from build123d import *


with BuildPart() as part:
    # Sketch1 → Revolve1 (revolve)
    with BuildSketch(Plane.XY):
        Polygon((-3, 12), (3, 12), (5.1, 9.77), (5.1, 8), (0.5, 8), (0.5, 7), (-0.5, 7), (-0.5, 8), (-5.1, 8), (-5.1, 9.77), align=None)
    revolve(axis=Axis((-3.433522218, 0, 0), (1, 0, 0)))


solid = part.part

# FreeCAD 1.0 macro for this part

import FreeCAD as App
import Part
import Sketcher
from FreeCAD import Vector
Q = App.Units.Quantity

doc = App.newDocument("Part")
body = doc.addObject("PartDesign::Body", "Body")

sketch1 = body.newObject("Sketcher::SketchObject", "Sketch")
sketch1.AttachmentSupport = (doc.getObject("XY_Plane"), [""])
sketch1.MapMode = "FlatFace"
sketch1.addGeometry([
    Part.LineSegment(Vector(3, 12, 0), Vector(-3, 12, 0)),
    Part.LineSegment(Vector(-3, 12, 0), Vector(-5.1, 9.8, 0)),
    Part.LineSegment(Vector(-5.1, 9.8, 0), Vector(-5.1, 8, 0)),
    Part.LineSegment(Vector(-5.1, 8, 0), Vector(-0.5, 8, 0)),
    Part.LineSegment(Vector(-0.5, 8, 0), Vector(-0.5, 7, 0)),
    Part.LineSegment(Vector(-0.5, 7, 0), Vector(0.5, 7, 0)),
    Part.LineSegment(Vector(0.5, 7, 0), Vector(0.5, 8, 0)),
    Part.LineSegment(Vector(0.5, 8, 0), Vector(5.1, 8, 0)),
    Part.LineSegment(Vector(5.1, 8, 0), Vector(5.1, 9.8, 0)),
    Part.LineSegment(Vector(5.1, 9.8, 0), Vector(3, 12, 0)),
], False)
sketch1.addConstraint([
    Sketcher.Constraint("Coincident", 0, 2, 1, 1),
    Sketcher.Constraint("Coincident", 1, 2, 2, 1),
    Sketcher.Constraint("Coincident", 2, 2, 3, 1),
    Sketcher.Constraint("Coincident", 3, 2, 4, 1),
    Sketcher.Constraint("Coincident", 4, 2, 5, 1),
    Sketcher.Constraint("Coincident", 5, 2, 6, 1),
    Sketcher.Constraint("Coincident", 6, 2, 7, 1),
    Sketcher.Constraint("Coincident", 7, 2, 8, 1),
    Sketcher.Constraint("Coincident", 8, 2, 9, 1),
    Sketcher.Constraint("Coincident", 9, 2, 0, 1),
    Sketcher.Constraint("Horizontal", 0),
    Sketcher.Constraint("Vertical", 2),
    Sketcher.Constraint("Horizontal", 3),
    Sketcher.Constraint("Vertical", 4),
    Sketcher.Constraint("Horizontal", 5),
    Sketcher.Constraint("Vertical", 6),
    Sketcher.Constraint("Horizontal", 7),
    Sketcher.Constraint("Vertical", 8),
    Sketcher.Constraint("Symmetric", 3, 2, 6, 2, -2),
    Sketcher.Constraint("Symmetric", 1, 2, 8, 2, -2),
    Sketcher.Constraint("Equal", 5, 4),
    Sketcher.Constraint("Equal", 1, 9),
    Sketcher.Constraint("DistanceX", 0, 2, 0, 1, Q("6 mm")),
    Sketcher.Constraint("DistanceX", 5, 1, 5, 2, Q("1 mm")),
    Sketcher.Constraint("DistanceX", 3, 1, 3, 2, Q("4.6 mm")),
    Sketcher.Constraint("DistanceY", -1, 1, 0, 2, Q("12 mm")),
    Sketcher.Constraint("DistanceY", -1, 1, 2, 2, Q("8 mm")),
    Sketcher.Constraint("DistanceY", 2, 2, 2, 1, Q("1.77 mm")),
])
revolution = body.newObject("PartDesign::Revolution", "Revolution")
revolution.Profile = sketch1
revolution.ReferenceAxis = (sketch1, ["H_Axis"])
revolution.Angle = 360

doc.recompute()
